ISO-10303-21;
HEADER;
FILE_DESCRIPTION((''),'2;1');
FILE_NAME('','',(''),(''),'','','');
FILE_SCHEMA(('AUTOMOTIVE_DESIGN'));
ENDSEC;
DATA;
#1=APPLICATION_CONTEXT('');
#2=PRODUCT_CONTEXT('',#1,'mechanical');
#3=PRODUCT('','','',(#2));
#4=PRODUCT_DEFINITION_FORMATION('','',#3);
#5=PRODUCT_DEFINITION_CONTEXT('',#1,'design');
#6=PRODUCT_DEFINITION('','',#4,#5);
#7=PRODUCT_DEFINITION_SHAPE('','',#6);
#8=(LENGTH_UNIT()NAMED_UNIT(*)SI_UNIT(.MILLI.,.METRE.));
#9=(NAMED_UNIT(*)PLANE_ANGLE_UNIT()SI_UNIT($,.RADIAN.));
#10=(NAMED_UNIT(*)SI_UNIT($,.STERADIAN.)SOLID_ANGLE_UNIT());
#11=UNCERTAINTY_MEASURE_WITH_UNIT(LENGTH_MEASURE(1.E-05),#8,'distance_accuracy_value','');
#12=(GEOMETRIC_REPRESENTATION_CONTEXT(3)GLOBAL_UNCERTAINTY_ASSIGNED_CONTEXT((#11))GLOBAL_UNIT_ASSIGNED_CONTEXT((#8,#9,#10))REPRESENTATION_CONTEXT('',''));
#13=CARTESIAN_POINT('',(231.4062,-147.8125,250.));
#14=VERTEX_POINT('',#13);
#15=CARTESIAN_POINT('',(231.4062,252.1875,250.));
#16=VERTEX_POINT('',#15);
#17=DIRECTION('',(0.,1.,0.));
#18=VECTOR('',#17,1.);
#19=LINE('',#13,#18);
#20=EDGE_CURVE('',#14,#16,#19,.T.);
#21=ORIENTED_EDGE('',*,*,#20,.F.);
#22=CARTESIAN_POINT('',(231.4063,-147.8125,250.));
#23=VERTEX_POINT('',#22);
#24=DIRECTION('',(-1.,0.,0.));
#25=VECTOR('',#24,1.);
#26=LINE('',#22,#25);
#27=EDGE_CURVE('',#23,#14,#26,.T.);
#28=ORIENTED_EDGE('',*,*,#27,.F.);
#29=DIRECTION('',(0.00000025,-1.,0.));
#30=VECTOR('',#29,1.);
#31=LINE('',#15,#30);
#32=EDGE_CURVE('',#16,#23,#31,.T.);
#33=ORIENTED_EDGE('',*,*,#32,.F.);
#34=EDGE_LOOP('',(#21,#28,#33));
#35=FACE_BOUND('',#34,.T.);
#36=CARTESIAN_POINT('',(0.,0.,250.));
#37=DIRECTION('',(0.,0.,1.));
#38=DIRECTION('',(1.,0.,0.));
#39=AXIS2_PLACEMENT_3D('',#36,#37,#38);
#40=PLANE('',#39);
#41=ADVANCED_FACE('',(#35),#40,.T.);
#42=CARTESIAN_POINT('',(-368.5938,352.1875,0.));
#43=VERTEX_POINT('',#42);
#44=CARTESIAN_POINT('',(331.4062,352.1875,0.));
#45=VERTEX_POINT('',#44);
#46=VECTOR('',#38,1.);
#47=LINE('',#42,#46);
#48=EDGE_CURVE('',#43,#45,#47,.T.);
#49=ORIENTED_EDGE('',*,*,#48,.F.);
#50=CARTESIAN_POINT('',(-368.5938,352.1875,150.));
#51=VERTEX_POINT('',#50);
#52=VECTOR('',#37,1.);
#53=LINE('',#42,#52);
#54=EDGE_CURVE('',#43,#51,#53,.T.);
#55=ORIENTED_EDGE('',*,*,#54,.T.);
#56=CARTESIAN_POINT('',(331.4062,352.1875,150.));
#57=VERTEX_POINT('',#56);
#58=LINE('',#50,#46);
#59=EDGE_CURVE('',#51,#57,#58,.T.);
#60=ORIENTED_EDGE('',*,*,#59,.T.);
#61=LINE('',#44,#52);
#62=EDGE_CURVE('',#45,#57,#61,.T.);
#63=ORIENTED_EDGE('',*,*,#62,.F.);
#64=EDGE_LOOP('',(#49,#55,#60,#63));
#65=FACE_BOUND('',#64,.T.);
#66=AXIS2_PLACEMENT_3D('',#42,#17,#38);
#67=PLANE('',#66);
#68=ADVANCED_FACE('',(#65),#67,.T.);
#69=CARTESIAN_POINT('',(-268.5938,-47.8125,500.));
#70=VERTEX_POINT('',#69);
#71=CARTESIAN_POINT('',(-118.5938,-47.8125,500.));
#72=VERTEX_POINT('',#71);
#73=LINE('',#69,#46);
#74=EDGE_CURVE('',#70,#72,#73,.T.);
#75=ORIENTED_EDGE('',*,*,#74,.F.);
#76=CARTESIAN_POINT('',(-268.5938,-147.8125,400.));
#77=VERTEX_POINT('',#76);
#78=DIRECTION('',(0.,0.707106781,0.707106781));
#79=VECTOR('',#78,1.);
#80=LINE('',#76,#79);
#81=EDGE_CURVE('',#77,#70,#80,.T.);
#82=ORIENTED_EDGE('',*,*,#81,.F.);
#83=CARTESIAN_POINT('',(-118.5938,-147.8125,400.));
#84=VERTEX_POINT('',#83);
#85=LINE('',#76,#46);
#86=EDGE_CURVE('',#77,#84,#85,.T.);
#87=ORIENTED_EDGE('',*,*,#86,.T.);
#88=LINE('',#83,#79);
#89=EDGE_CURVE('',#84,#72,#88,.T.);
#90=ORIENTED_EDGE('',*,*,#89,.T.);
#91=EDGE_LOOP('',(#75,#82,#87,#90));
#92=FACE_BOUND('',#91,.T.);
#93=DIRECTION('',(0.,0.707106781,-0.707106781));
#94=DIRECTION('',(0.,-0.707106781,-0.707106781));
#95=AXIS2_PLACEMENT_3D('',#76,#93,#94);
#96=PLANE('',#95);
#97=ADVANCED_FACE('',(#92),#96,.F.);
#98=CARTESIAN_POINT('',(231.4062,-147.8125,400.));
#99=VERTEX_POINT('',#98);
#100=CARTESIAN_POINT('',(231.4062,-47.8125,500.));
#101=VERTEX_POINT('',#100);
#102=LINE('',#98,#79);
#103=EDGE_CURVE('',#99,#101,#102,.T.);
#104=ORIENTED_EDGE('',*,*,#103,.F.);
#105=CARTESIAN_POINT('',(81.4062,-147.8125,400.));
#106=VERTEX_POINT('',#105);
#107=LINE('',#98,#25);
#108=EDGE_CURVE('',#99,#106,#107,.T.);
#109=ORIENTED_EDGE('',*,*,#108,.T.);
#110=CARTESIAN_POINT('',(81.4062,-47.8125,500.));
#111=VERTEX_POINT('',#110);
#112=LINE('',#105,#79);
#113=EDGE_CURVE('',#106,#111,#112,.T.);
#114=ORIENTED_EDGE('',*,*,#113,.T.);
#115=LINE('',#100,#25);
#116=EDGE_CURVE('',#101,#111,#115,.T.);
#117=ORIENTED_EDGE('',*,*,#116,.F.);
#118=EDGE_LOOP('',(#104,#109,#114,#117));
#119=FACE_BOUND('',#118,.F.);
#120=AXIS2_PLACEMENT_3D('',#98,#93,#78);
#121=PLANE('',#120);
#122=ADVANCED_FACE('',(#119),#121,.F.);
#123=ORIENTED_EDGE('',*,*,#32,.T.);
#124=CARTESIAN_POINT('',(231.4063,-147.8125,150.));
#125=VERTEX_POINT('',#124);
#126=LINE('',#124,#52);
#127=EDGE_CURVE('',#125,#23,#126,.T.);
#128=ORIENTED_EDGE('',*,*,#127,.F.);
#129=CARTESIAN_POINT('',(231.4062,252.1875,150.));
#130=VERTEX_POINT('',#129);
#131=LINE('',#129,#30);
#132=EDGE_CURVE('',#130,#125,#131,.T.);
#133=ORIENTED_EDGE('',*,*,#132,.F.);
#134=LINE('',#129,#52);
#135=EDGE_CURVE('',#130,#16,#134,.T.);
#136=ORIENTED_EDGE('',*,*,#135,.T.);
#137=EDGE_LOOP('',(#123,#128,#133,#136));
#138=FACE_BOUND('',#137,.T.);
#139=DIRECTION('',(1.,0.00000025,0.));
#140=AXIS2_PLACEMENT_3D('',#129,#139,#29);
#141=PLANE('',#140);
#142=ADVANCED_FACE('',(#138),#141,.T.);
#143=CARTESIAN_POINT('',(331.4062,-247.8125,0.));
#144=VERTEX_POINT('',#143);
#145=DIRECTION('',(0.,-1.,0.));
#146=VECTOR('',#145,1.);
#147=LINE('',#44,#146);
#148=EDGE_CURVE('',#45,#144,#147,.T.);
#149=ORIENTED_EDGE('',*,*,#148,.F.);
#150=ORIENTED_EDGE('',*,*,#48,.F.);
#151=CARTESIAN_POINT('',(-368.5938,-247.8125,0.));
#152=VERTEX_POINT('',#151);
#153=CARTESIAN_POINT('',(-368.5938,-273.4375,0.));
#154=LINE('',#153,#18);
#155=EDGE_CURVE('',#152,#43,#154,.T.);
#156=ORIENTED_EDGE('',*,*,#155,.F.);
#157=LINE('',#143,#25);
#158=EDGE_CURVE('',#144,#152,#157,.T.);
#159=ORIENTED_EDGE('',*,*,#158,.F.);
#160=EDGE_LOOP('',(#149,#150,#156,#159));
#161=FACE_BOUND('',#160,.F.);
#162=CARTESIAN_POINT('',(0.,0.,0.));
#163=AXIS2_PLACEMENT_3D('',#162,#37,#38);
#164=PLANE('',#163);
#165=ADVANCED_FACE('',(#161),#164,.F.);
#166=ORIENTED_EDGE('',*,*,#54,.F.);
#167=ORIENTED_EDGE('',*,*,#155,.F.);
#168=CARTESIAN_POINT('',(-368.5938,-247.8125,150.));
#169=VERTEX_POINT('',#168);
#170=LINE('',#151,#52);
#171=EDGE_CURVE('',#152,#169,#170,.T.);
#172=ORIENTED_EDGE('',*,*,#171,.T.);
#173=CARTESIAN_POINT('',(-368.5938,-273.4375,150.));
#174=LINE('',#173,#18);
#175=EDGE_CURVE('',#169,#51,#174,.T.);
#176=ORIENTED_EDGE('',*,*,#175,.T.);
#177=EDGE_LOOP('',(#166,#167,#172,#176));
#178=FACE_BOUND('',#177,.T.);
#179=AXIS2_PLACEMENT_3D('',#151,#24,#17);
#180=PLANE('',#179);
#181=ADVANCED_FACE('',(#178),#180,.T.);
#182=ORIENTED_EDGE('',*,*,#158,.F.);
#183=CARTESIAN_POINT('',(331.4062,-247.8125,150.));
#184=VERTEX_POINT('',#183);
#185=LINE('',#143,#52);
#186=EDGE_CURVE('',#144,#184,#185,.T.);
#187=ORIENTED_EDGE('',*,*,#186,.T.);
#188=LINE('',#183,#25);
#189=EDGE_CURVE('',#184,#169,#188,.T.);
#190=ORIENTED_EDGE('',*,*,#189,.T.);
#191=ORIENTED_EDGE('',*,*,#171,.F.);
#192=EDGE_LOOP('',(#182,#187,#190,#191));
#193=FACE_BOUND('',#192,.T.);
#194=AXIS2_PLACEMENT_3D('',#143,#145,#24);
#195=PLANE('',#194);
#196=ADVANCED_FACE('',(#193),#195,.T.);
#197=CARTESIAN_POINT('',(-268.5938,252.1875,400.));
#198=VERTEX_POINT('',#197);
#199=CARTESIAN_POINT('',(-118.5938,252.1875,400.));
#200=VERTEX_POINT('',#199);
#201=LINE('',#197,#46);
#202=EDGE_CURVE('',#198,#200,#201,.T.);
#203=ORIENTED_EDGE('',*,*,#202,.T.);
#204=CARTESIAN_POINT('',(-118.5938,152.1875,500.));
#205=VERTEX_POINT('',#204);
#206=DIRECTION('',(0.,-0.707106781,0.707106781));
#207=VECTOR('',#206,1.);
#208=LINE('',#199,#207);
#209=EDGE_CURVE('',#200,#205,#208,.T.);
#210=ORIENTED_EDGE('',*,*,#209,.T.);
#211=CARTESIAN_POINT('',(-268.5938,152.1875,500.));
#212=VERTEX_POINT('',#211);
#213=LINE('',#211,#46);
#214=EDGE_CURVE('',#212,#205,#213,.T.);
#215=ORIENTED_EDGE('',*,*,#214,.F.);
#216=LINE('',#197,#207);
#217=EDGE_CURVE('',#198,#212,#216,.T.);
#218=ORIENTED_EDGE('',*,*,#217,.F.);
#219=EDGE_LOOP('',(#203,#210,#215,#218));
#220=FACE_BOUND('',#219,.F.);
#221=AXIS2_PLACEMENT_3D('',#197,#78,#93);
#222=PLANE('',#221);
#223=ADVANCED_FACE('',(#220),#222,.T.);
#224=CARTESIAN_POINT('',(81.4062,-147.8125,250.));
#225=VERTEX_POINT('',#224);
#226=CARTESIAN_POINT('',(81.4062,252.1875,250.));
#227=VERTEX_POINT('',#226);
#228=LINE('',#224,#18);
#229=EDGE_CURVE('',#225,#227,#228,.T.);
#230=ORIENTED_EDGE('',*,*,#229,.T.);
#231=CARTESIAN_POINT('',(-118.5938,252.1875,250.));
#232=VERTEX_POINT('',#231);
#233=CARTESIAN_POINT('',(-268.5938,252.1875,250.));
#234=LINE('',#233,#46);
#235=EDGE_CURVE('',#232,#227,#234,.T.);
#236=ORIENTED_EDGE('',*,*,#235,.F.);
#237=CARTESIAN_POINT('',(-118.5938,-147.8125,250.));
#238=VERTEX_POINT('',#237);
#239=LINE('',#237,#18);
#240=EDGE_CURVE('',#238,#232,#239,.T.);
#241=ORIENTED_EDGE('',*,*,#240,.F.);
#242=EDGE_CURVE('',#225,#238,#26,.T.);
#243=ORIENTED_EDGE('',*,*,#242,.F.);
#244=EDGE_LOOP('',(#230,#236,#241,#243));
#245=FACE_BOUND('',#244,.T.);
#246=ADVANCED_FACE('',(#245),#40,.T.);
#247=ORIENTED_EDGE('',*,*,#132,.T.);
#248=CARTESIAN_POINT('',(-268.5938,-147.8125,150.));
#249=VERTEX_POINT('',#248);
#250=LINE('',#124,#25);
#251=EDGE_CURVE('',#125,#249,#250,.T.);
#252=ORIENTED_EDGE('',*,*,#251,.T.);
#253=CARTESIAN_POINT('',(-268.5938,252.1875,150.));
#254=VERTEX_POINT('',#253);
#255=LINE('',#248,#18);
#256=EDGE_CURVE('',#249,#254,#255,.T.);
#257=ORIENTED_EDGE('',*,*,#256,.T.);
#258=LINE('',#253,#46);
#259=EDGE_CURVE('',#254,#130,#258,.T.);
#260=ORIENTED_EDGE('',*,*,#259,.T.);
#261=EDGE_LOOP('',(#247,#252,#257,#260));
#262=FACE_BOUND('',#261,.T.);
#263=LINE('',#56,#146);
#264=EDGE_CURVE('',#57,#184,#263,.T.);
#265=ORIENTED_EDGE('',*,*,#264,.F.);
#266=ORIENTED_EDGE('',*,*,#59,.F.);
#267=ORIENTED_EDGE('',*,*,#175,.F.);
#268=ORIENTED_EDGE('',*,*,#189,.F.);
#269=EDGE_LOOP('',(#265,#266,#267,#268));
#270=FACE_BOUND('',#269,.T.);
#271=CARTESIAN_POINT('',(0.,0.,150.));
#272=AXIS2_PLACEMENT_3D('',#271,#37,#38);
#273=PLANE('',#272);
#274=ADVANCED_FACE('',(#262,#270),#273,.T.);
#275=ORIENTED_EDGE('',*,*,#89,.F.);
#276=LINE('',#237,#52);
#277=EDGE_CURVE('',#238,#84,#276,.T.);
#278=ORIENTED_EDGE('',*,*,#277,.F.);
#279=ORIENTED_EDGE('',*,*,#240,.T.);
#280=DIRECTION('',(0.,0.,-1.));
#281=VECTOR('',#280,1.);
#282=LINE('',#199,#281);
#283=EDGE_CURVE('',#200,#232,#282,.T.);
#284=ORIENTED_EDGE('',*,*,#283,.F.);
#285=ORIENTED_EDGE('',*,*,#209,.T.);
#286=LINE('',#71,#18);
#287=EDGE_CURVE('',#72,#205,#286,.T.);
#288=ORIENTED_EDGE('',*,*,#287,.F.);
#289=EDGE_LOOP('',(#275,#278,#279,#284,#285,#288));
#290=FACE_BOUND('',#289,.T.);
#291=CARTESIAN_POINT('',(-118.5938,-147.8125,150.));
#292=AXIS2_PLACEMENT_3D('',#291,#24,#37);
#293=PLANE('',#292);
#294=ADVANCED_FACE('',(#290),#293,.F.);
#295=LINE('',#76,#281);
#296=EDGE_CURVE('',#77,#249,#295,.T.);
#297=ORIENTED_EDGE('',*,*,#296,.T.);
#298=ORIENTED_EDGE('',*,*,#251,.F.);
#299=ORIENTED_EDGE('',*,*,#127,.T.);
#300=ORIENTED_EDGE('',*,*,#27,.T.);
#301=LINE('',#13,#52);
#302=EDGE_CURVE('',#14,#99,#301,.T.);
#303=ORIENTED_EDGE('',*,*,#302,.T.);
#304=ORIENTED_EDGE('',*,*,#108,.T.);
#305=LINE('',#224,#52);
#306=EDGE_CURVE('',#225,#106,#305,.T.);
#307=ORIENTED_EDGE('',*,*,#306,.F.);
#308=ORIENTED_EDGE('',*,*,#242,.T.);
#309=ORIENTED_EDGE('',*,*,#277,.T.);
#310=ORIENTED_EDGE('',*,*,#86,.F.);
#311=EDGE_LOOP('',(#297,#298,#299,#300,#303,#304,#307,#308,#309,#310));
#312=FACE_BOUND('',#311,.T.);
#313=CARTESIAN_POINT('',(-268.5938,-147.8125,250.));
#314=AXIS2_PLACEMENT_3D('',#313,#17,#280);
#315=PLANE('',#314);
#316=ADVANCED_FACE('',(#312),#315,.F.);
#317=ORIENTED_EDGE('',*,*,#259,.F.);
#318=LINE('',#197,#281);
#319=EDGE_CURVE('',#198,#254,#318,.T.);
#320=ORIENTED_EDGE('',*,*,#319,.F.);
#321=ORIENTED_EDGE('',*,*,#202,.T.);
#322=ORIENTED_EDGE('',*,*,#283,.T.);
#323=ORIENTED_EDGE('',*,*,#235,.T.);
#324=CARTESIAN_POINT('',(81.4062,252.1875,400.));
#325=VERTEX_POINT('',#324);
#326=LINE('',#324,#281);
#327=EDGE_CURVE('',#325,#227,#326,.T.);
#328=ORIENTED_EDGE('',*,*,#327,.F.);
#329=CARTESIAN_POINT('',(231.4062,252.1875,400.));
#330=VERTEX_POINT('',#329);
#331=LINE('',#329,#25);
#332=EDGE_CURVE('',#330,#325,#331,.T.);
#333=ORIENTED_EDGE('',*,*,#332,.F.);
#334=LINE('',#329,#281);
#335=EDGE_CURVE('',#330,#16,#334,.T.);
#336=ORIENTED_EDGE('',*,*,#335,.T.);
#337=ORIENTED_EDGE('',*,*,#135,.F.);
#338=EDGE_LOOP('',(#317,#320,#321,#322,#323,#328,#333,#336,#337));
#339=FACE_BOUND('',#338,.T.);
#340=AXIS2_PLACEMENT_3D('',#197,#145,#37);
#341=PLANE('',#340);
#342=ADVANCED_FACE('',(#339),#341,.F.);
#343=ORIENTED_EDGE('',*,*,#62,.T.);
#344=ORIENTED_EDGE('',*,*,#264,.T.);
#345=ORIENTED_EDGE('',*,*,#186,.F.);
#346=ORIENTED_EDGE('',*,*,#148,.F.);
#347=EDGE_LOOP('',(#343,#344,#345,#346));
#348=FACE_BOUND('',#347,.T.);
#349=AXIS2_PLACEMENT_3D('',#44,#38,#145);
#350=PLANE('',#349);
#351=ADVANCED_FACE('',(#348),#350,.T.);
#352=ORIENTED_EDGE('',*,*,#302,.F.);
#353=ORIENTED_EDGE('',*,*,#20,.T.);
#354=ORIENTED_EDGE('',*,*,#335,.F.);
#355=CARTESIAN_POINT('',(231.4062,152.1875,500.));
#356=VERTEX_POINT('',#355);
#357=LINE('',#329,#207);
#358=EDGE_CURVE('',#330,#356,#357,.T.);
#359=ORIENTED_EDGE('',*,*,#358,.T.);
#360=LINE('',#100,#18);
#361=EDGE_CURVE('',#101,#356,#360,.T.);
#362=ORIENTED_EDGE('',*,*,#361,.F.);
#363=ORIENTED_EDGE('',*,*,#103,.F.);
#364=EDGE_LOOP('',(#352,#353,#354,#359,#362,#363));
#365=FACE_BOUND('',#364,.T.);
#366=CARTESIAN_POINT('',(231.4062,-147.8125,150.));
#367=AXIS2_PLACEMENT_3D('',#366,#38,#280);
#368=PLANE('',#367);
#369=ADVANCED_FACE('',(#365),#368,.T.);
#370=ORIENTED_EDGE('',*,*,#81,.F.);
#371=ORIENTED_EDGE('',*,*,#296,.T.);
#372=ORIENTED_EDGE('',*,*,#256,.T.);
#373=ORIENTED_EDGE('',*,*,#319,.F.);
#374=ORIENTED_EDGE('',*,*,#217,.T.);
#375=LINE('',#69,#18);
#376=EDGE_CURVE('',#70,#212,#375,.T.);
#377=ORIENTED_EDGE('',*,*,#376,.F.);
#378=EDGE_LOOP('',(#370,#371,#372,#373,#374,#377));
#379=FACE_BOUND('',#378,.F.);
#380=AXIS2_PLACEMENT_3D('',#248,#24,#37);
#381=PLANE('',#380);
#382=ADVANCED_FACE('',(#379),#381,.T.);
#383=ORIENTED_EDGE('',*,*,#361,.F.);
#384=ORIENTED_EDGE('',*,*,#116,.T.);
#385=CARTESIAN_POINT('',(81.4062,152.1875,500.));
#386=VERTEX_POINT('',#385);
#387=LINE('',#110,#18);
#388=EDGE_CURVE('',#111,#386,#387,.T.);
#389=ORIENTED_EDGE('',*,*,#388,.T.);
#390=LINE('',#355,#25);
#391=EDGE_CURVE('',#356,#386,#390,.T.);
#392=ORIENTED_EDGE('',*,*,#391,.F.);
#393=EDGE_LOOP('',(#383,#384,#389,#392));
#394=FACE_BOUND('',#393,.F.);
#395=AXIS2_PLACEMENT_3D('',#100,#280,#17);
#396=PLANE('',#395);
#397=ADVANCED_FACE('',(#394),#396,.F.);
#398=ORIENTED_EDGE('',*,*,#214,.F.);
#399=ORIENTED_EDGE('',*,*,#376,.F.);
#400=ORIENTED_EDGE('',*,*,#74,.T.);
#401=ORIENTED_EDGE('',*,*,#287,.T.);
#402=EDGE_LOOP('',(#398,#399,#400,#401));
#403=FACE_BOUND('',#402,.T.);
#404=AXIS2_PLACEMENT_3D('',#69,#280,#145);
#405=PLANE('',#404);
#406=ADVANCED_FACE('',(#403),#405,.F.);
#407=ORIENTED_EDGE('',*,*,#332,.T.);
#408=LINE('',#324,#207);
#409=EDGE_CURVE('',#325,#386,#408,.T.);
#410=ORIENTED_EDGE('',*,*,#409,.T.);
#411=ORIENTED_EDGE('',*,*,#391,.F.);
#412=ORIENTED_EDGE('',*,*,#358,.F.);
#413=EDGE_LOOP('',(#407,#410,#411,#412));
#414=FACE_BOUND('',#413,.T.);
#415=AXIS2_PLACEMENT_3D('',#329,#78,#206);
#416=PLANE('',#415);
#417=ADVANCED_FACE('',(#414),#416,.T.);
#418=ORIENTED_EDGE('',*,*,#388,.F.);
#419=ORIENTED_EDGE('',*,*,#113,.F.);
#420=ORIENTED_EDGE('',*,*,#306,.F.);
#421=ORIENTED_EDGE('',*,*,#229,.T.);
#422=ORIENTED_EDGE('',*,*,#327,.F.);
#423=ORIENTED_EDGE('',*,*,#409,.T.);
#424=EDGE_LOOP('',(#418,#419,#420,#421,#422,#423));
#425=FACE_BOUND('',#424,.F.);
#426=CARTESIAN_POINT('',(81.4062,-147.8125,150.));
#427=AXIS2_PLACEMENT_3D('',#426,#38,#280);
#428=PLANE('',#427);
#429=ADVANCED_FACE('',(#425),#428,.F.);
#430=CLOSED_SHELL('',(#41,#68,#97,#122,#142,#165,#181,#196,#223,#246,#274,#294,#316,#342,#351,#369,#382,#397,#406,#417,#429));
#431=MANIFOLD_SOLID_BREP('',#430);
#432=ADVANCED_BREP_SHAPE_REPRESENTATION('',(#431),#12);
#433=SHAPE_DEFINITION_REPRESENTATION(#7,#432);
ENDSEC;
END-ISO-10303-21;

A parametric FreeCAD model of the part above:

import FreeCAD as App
import Part
import Sketcher
from FreeCAD import Vector


def add_polygon(sketch, points):
    """Adds a closed chain of lines whose ends are joined by coincident constraints."""
    first, n = sketch.GeometryCount, len(points)
    for a, b in zip(points, points[1:] + points[:1]):
        sketch.addGeometry(Part.LineSegment(App.Vector(*a, 0), App.Vector(*b, 0)), False)
    for i in range(n):
        sketch.addConstraint(Sketcher.Constraint("Coincident", first + i, 2, first + (i + 1) % n, 1))

doc = App.newDocument("Part")
params = doc.addObject("Spreadsheet::Sheet", "Params")
for row, (alias, value) in enumerate([
    ("sketch1_width", "700 mm"),
    ("sketch1_height", "600 mm"),
    ("pad1_length", "150 mm"),
    ("sketch2_width", "500 mm"),
    ("sketch2_height", "400 mm"),
    ("pad2_length", "100 mm"),
    ("sketch3_width", "400 mm"),
    ("pad3_length", "150 mm"),
], start=1):
    params.set(f"A{row}", alias)
    params.set(f"B{row}", "=" + value)
    params.setAlias(f"B{row}", alias)

body = doc.addObject("PartDesign::Body", "Body")

sketch1 = body.newObject("Sketcher::SketchObject", "Sketch")
sketch1.AttachmentSupport = (doc.getObject("XY_Plane"), [""])
sketch1.MapMode = "FlatFace"
add_polygon(sketch1, [(-369, 352), (-369, -248), (331, -248), (331, 352)])
sketch1.addConstraint(Sketcher.Constraint("Vertical", 0))
sketch1.addConstraint(Sketcher.Constraint("Horizontal", 1))
sketch1.addConstraint(Sketcher.Constraint("Vertical", 2))
sketch1.addConstraint(Sketcher.Constraint("Horizontal", 3))
sketch1.addConstraint(Sketcher.Constraint("DistanceX", 1, 1, 1, 2, 700.0))
sketch1.addConstraint(Sketcher.Constraint("DistanceY", 0, 2, 0, 1, 600.0))
sketch1.addConstraint(Sketcher.Constraint("DistanceX", 0, 2, -1, 1, 368.5938))
sketch1.addConstraint(Sketcher.Constraint("DistanceY", 0, 2, -1, 1, 247.8125))
sketch1.setExpression("Constraints[8]", "Params.sketch1_width")
sketch1.setExpression("Constraints[9]", "Params.sketch1_height")
pad1 = body.newObject("PartDesign::Pad", "Pad")
pad1.Profile = sketch1
pad1.setExpression("Length", "Params.pad1_length")

sketch2 = body.newObject("Sketcher::SketchObject", "Sketch001")
sketch2.AttachmentSupport = (doc.getObject("XY_Plane"), [""])
sketch2.MapMode = "FlatFace"
sketch2.AttachmentOffset = App.Placement(Vector(0, 0, 150), App.Rotation())
add_polygon(sketch2, [(-269, 252), (-269, -148), (231, -148), (231, 252)])
sketch2.addConstraint(Sketcher.Constraint("Vertical", 0))
sketch2.addConstraint(Sketcher.Constraint("Horizontal", 1))
sketch2.addConstraint(Sketcher.Constraint("Vertical", 2))
sketch2.addConstraint(Sketcher.Constraint("Horizontal", 3))
sketch2.addConstraint(Sketcher.Constraint("DistanceX", 1, 1, 1, 2, 500.0))
sketch2.addConstraint(Sketcher.Constraint("DistanceY", 0, 2, 0, 1, 400.0))
sketch2.addConstraint(Sketcher.Constraint("DistanceX", 0, 2, -1, 1, 268.5938))
sketch2.addConstraint(Sketcher.Constraint("DistanceY", 0, 2, -1, 1, 147.8125))
sketch2.setExpression("Constraints[8]", "Params.sketch2_width")
sketch2.setExpression("Constraints[9]", "Params.sketch2_height")
pad2 = body.newObject("PartDesign::Pad", "Pad001")
pad2.Profile = sketch2
pad2.setExpression("Length", "Params.pad2_length")

sketch3 = body.newObject("Sketcher::SketchObject", "Sketch002")
sketch3.AttachmentSupport = (doc.getObject("YZ_Plane"), [""])
sketch3.MapMode = "FlatFace"
sketch3.AttachmentOffset = App.Placement(Vector(0, 0, 231.4062), App.Rotation())
add_polygon(sketch3, [(-148, 400), (-148, 250), (252, 250), (252, 400), (152, 500), (-48, 500)])
sketch3.addConstraint(Sketcher.Constraint("Vertical", 0))
sketch3.addConstraint(Sketcher.Constraint("Horizontal", 1))
sketch3.addConstraint(Sketcher.Constraint("Vertical", 2))
sketch3.addConstraint(Sketcher.Constraint("Horizontal", 4))
sketch3.addConstraint(Sketcher.Constraint("Perpendicular", 3, 5))
sketch3.addConstraint(Sketcher.Constraint("Horizontal", 2, 2, 5, 2))
sketch3.addConstraint(Sketcher.Constraint("Equal", 3, 5))
sketch3.addConstraint(Sketcher.Constraint("DistanceX", 1, 1, 1, 2, 400.0))
sketch3.addConstraint(Sketcher.Constraint("DistanceY", -1, 1, 0, 2, 250.0))
sketch3.addConstraint(Sketcher.Constraint("DistanceY", -1, 1, 2, 2, 400.0))
sketch3.addConstraint(Sketcher.Constraint("DistanceX", 3, 2, 2, 2, 100.0))
sketch3.addConstraint(Sketcher.Constraint("DistanceX", 0, 2, -1, 1, 147.8125))
sketch3.setExpression("Constraints[13]", "Params.sketch3_width")
pad3 = body.newObject("PartDesign::Pad", "Pad002")
pad3.Profile = sketch3
pad3.setExpression("Length", "Params.pad3_length")
pad3.Reversed = True
doc.recompute()

datumplane = body.newObject("PartDesign::Plane", "DatumPlane")
datumplane.AttachmentSupport = (doc.getObject("YZ_Plane"), [""])
datumplane.MapMode = "FlatFace"
datumplane.AttachmentOffset = App.Placement(Vector(0, 0, -18.5938), App.Rotation())
mirrored = body.newObject("PartDesign::Mirrored", "Mirrored")
mirrored.Originals = [pad3]
mirrored.MirrorPlane = (datumplane, [""])
body.Tip = mirrored

doc.recompute()
